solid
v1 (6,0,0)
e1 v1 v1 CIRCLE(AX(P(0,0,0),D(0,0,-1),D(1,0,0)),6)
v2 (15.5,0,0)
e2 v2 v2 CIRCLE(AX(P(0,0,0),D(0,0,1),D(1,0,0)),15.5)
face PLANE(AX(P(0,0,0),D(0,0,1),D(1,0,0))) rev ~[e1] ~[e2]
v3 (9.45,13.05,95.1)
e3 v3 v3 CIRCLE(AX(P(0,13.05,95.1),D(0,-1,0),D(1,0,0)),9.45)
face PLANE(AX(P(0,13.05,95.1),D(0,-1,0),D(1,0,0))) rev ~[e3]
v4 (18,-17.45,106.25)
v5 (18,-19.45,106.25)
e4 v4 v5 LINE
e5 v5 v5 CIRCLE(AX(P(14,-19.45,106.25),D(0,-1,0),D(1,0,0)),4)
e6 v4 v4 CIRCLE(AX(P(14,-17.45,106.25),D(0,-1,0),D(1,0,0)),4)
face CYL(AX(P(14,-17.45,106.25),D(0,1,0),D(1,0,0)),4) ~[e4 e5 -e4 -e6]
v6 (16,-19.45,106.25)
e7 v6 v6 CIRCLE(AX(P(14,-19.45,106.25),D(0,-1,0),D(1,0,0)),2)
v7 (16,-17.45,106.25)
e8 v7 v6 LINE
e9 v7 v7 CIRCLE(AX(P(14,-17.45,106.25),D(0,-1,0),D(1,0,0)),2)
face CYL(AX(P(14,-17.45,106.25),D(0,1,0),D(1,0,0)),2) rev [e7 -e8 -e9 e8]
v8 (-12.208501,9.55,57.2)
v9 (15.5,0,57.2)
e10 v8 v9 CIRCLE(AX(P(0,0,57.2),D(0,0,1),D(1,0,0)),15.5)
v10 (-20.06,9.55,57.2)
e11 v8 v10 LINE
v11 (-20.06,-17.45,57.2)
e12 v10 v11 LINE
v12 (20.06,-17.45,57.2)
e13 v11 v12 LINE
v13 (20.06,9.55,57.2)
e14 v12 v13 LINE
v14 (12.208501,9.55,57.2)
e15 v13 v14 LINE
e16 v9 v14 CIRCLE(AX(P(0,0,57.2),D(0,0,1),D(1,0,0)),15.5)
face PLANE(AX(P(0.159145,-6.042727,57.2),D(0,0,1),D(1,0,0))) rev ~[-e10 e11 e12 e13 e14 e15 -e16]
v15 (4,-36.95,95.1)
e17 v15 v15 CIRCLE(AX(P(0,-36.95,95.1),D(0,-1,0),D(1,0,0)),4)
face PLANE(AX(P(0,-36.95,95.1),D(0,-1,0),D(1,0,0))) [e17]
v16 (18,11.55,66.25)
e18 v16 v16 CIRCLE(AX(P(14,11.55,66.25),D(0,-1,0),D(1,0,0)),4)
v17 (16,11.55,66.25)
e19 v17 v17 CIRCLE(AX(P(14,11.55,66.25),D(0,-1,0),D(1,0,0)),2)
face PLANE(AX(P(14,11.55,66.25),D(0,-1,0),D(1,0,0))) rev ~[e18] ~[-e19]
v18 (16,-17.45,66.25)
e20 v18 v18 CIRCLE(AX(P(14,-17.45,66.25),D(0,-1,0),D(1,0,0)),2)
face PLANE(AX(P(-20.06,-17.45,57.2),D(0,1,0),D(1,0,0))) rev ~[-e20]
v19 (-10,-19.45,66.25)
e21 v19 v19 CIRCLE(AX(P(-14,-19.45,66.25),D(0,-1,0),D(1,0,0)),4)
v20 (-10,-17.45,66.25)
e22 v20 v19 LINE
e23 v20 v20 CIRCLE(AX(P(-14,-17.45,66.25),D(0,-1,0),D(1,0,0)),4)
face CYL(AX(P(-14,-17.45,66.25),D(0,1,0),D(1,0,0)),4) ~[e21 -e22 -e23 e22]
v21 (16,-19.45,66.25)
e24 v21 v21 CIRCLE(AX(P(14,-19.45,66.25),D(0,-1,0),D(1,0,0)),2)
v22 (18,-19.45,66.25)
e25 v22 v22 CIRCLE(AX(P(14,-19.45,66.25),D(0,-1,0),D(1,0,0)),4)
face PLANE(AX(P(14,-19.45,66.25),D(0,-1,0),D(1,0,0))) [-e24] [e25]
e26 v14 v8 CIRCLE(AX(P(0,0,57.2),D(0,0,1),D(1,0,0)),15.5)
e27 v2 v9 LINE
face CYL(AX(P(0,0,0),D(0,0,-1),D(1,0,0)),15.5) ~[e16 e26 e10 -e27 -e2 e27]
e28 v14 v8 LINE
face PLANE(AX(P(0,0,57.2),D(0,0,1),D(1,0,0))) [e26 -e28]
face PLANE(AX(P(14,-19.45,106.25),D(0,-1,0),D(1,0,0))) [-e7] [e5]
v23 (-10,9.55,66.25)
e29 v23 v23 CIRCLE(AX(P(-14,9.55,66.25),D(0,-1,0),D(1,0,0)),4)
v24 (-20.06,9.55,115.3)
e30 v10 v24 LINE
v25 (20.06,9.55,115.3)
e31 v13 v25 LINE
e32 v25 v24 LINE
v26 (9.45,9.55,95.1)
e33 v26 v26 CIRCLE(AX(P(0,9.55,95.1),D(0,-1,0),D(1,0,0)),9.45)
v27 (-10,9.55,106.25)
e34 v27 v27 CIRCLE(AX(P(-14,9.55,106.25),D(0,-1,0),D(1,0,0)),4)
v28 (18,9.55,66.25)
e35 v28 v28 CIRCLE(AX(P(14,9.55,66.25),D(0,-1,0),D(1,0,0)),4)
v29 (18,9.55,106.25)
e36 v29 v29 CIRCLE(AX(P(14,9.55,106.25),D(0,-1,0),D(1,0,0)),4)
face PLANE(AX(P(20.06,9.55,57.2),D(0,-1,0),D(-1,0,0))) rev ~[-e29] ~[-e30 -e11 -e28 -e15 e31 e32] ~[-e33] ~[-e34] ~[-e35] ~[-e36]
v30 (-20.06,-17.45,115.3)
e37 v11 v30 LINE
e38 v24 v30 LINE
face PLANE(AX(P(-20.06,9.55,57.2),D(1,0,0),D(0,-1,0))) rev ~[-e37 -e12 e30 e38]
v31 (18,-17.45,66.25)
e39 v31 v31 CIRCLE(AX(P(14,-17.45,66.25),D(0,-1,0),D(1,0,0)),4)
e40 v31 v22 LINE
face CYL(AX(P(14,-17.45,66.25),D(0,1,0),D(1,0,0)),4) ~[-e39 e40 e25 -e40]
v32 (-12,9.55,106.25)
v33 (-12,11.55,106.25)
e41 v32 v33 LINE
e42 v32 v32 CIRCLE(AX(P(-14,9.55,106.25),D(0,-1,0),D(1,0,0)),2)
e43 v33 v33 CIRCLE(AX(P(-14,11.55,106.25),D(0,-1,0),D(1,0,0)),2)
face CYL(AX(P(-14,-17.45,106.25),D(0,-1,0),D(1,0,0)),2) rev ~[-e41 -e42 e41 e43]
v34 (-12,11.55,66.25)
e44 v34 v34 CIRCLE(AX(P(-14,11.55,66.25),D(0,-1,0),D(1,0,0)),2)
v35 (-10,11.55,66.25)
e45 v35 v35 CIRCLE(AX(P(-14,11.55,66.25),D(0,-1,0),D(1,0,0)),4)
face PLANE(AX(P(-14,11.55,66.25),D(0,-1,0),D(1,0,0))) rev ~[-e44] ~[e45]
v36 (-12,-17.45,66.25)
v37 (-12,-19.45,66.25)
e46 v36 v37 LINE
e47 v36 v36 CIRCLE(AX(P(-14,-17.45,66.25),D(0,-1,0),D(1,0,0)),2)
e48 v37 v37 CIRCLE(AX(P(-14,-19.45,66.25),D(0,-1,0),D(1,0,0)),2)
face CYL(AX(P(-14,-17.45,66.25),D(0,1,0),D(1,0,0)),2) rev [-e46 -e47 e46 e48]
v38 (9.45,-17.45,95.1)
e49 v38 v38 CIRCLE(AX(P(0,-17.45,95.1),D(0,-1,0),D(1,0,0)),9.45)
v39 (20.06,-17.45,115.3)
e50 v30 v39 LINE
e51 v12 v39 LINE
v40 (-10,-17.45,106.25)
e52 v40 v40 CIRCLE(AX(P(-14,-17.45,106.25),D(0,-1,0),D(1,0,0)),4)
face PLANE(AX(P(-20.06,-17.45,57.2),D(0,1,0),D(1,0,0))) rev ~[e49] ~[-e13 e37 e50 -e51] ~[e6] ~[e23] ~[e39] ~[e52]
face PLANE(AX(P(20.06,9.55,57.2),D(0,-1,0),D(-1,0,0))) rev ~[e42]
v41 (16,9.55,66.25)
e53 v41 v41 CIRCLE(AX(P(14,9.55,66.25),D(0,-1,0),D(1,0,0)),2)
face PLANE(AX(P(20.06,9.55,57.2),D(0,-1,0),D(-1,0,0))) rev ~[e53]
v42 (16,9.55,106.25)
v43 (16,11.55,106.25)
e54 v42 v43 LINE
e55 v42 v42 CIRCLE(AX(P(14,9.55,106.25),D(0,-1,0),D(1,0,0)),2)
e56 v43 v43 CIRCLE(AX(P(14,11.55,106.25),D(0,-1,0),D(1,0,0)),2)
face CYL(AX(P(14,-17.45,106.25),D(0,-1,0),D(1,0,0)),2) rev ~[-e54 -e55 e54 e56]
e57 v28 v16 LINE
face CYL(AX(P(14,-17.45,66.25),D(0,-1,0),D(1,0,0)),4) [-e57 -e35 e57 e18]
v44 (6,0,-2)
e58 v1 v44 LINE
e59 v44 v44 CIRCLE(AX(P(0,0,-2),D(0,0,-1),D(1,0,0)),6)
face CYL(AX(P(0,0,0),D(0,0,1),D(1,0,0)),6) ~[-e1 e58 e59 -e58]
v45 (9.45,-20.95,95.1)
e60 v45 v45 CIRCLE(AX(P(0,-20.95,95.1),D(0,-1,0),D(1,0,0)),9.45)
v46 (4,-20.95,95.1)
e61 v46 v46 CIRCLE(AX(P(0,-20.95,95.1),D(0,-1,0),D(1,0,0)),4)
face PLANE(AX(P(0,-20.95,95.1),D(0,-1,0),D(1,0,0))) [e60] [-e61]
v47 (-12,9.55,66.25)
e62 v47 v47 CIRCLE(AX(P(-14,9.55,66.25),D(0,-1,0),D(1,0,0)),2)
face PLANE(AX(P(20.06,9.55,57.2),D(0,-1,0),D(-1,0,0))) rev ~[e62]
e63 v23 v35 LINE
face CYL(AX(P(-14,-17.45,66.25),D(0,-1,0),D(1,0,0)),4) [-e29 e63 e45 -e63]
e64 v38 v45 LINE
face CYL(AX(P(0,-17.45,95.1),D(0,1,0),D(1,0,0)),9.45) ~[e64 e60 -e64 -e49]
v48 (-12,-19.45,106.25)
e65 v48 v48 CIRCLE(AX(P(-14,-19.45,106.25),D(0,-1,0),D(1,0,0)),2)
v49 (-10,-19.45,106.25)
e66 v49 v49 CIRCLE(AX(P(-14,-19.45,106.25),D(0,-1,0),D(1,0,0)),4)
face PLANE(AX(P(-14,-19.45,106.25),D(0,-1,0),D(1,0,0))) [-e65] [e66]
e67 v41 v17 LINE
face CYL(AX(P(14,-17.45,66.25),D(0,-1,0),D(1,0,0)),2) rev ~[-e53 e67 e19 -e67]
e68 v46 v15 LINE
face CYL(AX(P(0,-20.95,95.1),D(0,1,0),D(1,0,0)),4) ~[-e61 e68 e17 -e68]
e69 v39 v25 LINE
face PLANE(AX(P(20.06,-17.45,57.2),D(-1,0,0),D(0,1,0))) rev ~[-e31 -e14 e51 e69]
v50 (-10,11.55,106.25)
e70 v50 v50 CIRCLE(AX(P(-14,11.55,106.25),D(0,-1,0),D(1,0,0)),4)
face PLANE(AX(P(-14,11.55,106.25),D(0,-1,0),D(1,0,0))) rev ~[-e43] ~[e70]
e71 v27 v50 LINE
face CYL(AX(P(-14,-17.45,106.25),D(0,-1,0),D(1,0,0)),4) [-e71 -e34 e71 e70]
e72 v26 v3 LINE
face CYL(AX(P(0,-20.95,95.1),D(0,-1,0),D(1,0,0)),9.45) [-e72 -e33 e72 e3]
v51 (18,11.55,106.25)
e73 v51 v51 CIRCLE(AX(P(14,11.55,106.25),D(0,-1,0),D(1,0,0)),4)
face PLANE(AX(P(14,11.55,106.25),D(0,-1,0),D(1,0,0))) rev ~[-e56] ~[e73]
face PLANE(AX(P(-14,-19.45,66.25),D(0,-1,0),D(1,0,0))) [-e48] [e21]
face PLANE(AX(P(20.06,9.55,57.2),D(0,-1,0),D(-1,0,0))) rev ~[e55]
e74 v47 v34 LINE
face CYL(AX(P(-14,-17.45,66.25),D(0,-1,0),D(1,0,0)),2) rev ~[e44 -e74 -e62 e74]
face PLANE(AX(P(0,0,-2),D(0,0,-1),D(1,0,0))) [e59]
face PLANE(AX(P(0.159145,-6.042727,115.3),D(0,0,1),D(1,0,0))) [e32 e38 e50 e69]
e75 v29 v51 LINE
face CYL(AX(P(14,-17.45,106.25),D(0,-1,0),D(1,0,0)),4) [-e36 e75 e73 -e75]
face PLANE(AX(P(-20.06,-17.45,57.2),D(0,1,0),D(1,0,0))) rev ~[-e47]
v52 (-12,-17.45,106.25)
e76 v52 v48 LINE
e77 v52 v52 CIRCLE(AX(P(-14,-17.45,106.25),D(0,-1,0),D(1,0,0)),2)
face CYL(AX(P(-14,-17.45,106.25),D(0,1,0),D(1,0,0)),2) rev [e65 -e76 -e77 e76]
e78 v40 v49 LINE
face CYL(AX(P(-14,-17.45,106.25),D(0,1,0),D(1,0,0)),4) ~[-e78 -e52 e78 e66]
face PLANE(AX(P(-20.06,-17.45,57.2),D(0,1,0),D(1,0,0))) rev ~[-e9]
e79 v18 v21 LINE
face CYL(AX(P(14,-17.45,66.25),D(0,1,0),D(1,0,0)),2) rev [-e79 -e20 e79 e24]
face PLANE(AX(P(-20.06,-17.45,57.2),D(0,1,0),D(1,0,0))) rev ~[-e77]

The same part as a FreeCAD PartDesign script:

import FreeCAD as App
import Part
import Sketcher
from FreeCAD import Vector

doc = App.newDocument("Part")
body = doc.addObject("PartDesign::Body", "Body")

# Sketch on XY plane
sketch1 = body.newObject("Sketcher::SketchObject", "Sketch")
sketch1.AttachmentSupport = (doc.getObject("XY_Plane"), [""])
sketch1.MapMode = "FlatFace"
sketch1.addGeometry(Part.Circle(Vector(0, 0, 0), Vector(0, 0, 1), 15.5), False)
sketch1.addConstraint(Sketcher.Constraint("Coincident", 0, 3, -1, 1))
sketch1.addConstraint(Sketcher.Constraint("Diameter", 0, 31.0))
pad1 = body.newObject("PartDesign::Pad", "Pad")
pad1.Profile = sketch1
pad1.Length = 57.2

# Sketch on XY plane
sketch2 = body.newObject("Sketcher::SketchObject", "Sketch001")
sketch2.AttachmentSupport = (doc.getObject("XY_Plane"), [""])
sketch2.MapMode = "FlatFace"
sketch2.AttachmentOffset = App.Placement(Vector(0, 0, 57.2), App.Rotation())
sketch2.addGeometry(Part.LineSegment(Vector(-20.06, 9.55, 0), Vector(-20.06, -17.45, 0)), False)
sketch2.addGeometry(Part.LineSegment(Vector(-20.06, -17.45, 0), Vector(20.06, -17.45, 0)), False)
sketch2.addGeometry(Part.LineSegment(Vector(20.06, -17.45, 0), Vector(20.06, 9.55, 0)), False)
sketch2.addGeometry(Part.LineSegment(Vector(20.06, 9.55, 0), Vector(-20.06, 9.55, 0)), False)
sketch2.addConstraint(Sketcher.Constraint("Coincident", 0, 2, 1, 1))
sketch2.addConstraint(Sketcher.Constraint("Coincident", 1, 2, 2, 1))
sketch2.addConstraint(Sketcher.Constraint("Coincident", 2, 2, 3, 1))
sketch2.addConstraint(Sketcher.Constraint("Coincident", 3, 2, 0, 1))
sketch2.addConstraint(Sketcher.Constraint("Vertical", 0))
sketch2.addConstraint(Sketcher.Constraint("Horizontal", 1))
sketch2.addConstraint(Sketcher.Constraint("Vertical", 2))
sketch2.addConstraint(Sketcher.Constraint("Horizontal", 3))
sketch2.addConstraint(Sketcher.Constraint("DistanceY", 0, 2, 0, 1, 27.0))
sketch2.addConstraint(Sketcher.Constraint("DistanceX", 1, 1, 1, 2, 40.12))
sketch2.addConstraint(Sketcher.Constraint("DistanceX", 0, 2, -1, 1, 20.06))
sketch2.addConstraint(Sketcher.Constraint("DistanceY", 0, 2, -1, 1, 17.45))
pad2 = body.newObject("PartDesign::Pad", "Pad001")
pad2.Profile = sketch2
pad2.Length = 58.1

# Sketch on XZ plane
sketch3 = body.newObject("Sketcher::SketchObject", "Sketch002")
sketch3.AttachmentSupport = (doc.getObject("XZ_Plane"), [""])
sketch3.MapMode = "FlatFace"
sketch3.AttachmentOffset = App.Placement(Vector(0, 0, 17.45), App.Rotation())
sketch3.addGeometry(Part.Circle(Vector(0, 95.1, 0), Vector(0, 0, 1), 9.45), False)
sketch3.addConstraint(Sketcher.Constraint("PointOnObject", 0, 3, -2))
sketch3.addConstraint(Sketcher.Constraint("Diameter", 0, 18.9))
sketch3.addConstraint(Sketcher.Constraint("DistanceY", -1, 1, 0, 3, 95.1))
pad3 = body.newObject("PartDesign::Pad", "Pad002")
pad3.Profile = sketch3
pad3.Length = 3.5

# Sketch on XZ plane
sketch4 = body.newObject("Sketcher::SketchObject", "Sketch003")
sketch4.AttachmentSupport = (doc.getObject("XZ_Plane"), [""])
sketch4.MapMode = "FlatFace"
sketch4.AttachmentOffset = App.Placement(Vector(0, 0, 20.95), App.Rotation())
sketch4.addGeometry(Part.Circle(Vector(0, 95.1, 0), Vector(0, 0, 1), 9.45), False)
sketch4.addConstraint(Sketcher.Constraint("PointOnObject", 0, 3, -2))
sketch4.addConstraint(Sketcher.Constraint("Diameter", 0, 18.9))
sketch4.addConstraint(Sketcher.Constraint("DistanceY", -1, 1, 0, 3, 95.1))
pad4 = body.newObject("PartDesign::Pad", "Pad003")
pad4.Profile = sketch4
pad4.Length = 34
pad4.Reversed = True

# Sketch on XZ plane
sketch5 = body.newObject("Sketcher::SketchObject", "Sketch004")
sketch5.AttachmentSupport = (doc.getObject("XZ_Plane"), [""])
sketch5.MapMode = "FlatFace"
sketch5.AttachmentOffset = App.Placement(Vector(0, 0, 20.95), App.Rotation())
sketch5.addGeometry(Part.Circle(Vector(0, 95.1, 0), Vector(0, 0, 1), 4), False)
sketch5.addConstraint(Sketcher.Constraint("PointOnObject", 0, 3, -2))
sketch5.addConstraint(Sketcher.Constraint("Diameter", 0, 8.0))
sketch5.addConstraint(Sketcher.Constraint("DistanceY", -1, 1, 0, 3, 95.1))
pad5 = body.newObject("PartDesign::Pad", "Pad004")
pad5.Profile = sketch5
pad5.Length = 16

# Sketch on XZ plane
sketch6 = body.newObject("Sketcher::SketchObject", "Sketch005")
sketch6.AttachmentSupport = (doc.getObject("XZ_Plane"), [""])
sketch6.MapMode = "FlatFace"
sketch6.AttachmentOffset = App.Placement(Vector(0, 0, 17.45), App.Rotation())
sketch6.addGeometry(Part.Circle(Vector(14, 106.25, 0), Vector(0, 0, 1), 4), False)
sketch6.addGeometry(Part.Circle(Vector(14, 106.25, 0), Vector(0, 0, 1), 2), False)
sketch6.addGeometry(Part.Circle(Vector(-14, 106.25, 0), Vector(0, 0, 1), 4), False)
sketch6.addGeometry(Part.Circle(Vector(-14, 106.25, 0), Vector(0, 0, 1), 2), False)
sketch6.addGeometry(Part.Circle(Vector(14, 66.25, 0), Vector(0, 0, 1), 4), False)
sketch6.addGeometry(Part.Circle(Vector(14, 66.25, 0), Vector(0, 0, 1), 2), False)
sketch6.addGeometry(Part.Circle(Vector(-14, 66.25, 0), Vector(0, 0, 1), 4), False)
sketch6.addGeometry(Part.Circle(Vector(-14, 66.25, 0), Vector(0, 0, 1), 2), False)
sketch6.addConstraint(Sketcher.Constraint("Coincident", 1, 3, 0, 3))
sketch6.addConstraint(Sketcher.Constraint("Coincident", 3, 3, 2, 3))
sketch6.addConstraint(Sketcher.Constraint("Coincident", 5, 3, 4, 3))
sketch6.addConstraint(Sketcher.Constraint("Coincident", 7, 3, 6, 3))
sketch6.addConstraint(Sketcher.Constraint("Equal", 0, 2))
sketch6.addConstraint(Sketcher.Constraint("Equal", 1, 3))
sketch6.addConstraint(Sketcher.Constraint("Equal", 2, 4))
sketch6.addConstraint(Sketcher.Constraint("Equal", 3, 5))
sketch6.addConstraint(Sketcher.Constraint("Equal", 4, 6))
sketch6.addConstraint(Sketcher.Constraint("Equal", 5, 7))
sketch6.addConstraint(Sketcher.Constraint("Symmetric", 0, 3, 2, 3, -2))
sketch6.addConstraint(Sketcher.Constraint("Symmetric", 4, 3, 6, 3, -2))
sketch6.addConstraint(Sketcher.Constraint("Vertical", 1, 3, 4, 3))
sketch6.addConstraint(Sketcher.Constraint("Diameter", 0, 8.0))
sketch6.addConstraint(Sketcher.Constraint("Diameter", 1, 4.0))
sketch6.addConstraint(Sketcher.Constraint("DistanceX", -1, 1, 0, 3, 14.0))
sketch6.addConstraint(Sketcher.Constraint("DistanceY", 4, 3, 0, 3, 40.0))
sketch6.addConstraint(Sketcher.Constraint("DistanceY", -1, 1, 0, 3, 106.25))
pad6 = body.newObject("PartDesign::Pad", "Pad005")
pad6.Profile = sketch6
pad6.Length = 2

# Sketch on XZ plane
sketch7 = body.newObject("Sketcher::SketchObject", "Sketch006")
sketch7.AttachmentSupport = (doc.getObject("XZ_Plane"), [""])
sketch7.MapMode = "FlatFace"
sketch7.AttachmentOffset = App.Placement(Vector(0, 0, 17.45), App.Rotation())
sketch7.addGeometry(Part.Circle(Vector(14, 106.25, 0), Vector(0, 0, 1), 4), False)
sketch7.addGeometry(Part.Circle(Vector(14, 106.25, 0), Vector(0, 0, 1), 2), False)
sketch7.addGeometry(Part.Circle(Vector(-14, 106.25, 0), Vector(0, 0, 1), 4), False)
sketch7.addGeometry(Part.Circle(Vector(-14, 106.25, 0), Vector(0, 0, 1), 2), False)
sketch7.addGeometry(Part.Circle(Vector(14, 66.25, 0), Vector(0, 0, 1), 4), False)
sketch7.addGeometry(Part.Circle(Vector(14, 66.25, 0), Vector(0, 0, 1), 2), False)
sketch7.addGeometry(Part.Circle(Vector(-14, 66.25, 0), Vector(0, 0, 1), 4), False)
sketch7.addGeometry(Part.Circle(Vector(-14, 66.25, 0), Vector(0, 0, 1), 2), False)
sketch7.addConstraint(Sketcher.Constraint("Coincident", 1, 3, 0, 3))
sketch7.addConstraint(Sketcher.Constraint("Coincident", 3, 3, 2, 3))
sketch7.addConstraint(Sketcher.Constraint("Coincident", 5, 3, 4, 3))
sketch7.addConstraint(Sketcher.Constraint("Coincident", 7, 3, 6, 3))
sketch7.addConstraint(Sketcher.Constraint("Equal", 0, 2))
sketch7.addConstraint(Sketcher.Constraint("Equal", 1, 3))
sketch7.addConstraint(Sketcher.Constraint("Equal", 2, 4))
sketch7.addConstraint(Sketcher.Constraint("Equal", 3, 5))
sketch7.addConstraint(Sketcher.Constraint("Equal", 4, 6))
sketch7.addConstraint(Sketcher.Constraint("Equal", 5, 7))
sketch7.addConstraint(Sketcher.Constraint("Symmetric", 0, 3, 2, 3, -2))
sketch7.addConstraint(Sketcher.Constraint("Symmetric", 4, 3, 6, 3, -2))
sketch7.addConstraint(Sketcher.Constraint("Vertical", 1, 3, 4, 3))
sketch7.addConstraint(Sketcher.Constraint("Diameter", 0, 8.0))
sketch7.addConstraint(Sketcher.Constraint("Diameter", 1, 4.0))
sketch7.addConstraint(Sketcher.Constraint("DistanceX", -1, 1, 0, 3, 14.0))
sketch7.addConstraint(Sketcher.Constraint("DistanceY", 4, 3, 0, 3, 40.0))
sketch7.addConstraint(Sketcher.Constraint("DistanceY", -1, 1, 0, 3, 106.25))
pad7 = body.newObject("PartDesign::Pad", "Pad006")
pad7.Profile = sketch7
pad7.Length = 29
pad7.Reversed = True

# Sketch on XY plane
sketch8 = body.newObject("Sketcher::SketchObject", "Sketch007")
sketch8.AttachmentSupport = (doc.getObject("XY_Plane"), [""])
sketch8.MapMode = "FlatFace"
sketch8.addGeometry(Part.Circle(Vector(0, 0, 0), Vector(0, 0, 1), 6), False)
sketch8.addConstraint(Sketcher.Constraint("Coincident", 0, 3, -1, 1))
sketch8.addConstraint(Sketcher.Constraint("Diameter", 0, 12.0))
pad8 = body.newObject("PartDesign::Pad", "Pad007")
pad8.Profile = sketch8
pad8.Length = 2
pad8.Reversed = True

doc.recompute()
